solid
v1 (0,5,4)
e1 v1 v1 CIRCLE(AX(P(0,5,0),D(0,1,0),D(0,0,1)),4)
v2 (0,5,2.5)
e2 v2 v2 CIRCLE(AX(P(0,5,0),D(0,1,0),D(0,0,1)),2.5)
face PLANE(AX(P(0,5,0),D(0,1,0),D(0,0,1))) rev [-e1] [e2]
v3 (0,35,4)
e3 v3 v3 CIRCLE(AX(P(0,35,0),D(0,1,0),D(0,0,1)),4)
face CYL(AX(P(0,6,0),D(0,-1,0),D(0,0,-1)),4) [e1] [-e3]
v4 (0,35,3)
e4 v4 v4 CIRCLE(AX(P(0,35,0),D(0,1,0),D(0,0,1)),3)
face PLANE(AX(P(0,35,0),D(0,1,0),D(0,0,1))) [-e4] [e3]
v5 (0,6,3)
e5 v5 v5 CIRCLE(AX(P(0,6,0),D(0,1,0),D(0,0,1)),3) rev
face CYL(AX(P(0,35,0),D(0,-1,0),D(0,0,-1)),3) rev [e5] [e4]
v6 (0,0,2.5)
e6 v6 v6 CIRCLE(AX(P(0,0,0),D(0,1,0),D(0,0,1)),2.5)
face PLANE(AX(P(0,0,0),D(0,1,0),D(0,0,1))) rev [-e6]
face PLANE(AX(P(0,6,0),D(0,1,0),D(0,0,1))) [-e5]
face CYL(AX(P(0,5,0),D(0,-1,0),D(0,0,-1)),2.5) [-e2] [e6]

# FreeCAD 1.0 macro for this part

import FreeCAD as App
import Part
import Sketcher

V = App.Vector

doc = App.newDocument("Part")
body = doc.addObject("PartDesign::Body", "Body")

sketch1 = body.newObject("Sketcher::SketchObject", "Sketch")
sketch1.AttachmentSupport = (doc.getObject("XZ_Plane"), [""])
sketch1.MapMode = "FlatFace"
sketch1.addGeometry(Part.Circle(V(0, 0, 0), V(0, 0, 1), 2.5), False)
sketch1.addConstraint([
    Sketcher.Constraint("Coincident", 0, 3, -1, 1),
    Sketcher.Constraint("Diameter", 0, 5.0),
])
pad1 = body.newObject("PartDesign::Pad", "Pad")
pad1.Profile = sketch1
pad1.Length = 5
pad1.Reversed = True

sketch2 = body.newObject("Sketcher::SketchObject", "Sketch001")
sketch2.AttachmentSupport = (doc.getObject("XZ_Plane"), [""])
sketch2.MapMode = "FlatFace"
sketch2.AttachmentOffset = App.Placement(V(0, 0, -5), App.Rotation())
sketch2.addGeometry(Part.Circle(V(0, 0, 0), V(0, 0, 1), 4), False)
sketch2.addConstraint([
    Sketcher.Constraint("Coincident", 0, 3, -1, 1),
    Sketcher.Constraint("Diameter", 0, 8.0),
])
pad2 = body.newObject("PartDesign::Pad", "Pad001")
pad2.Profile = sketch2
pad2.Length = 1
pad2.Reversed = True

sketch3 = body.newObject("Sketcher::SketchObject", "Sketch002")
sketch3.AttachmentSupport = (doc.getObject("XZ_Plane"), [""])
sketch3.MapMode = "FlatFace"
sketch3.AttachmentOffset = App.Placement(V(0, 0, -6), App.Rotation())
sketch3.addGeometry([
    Part.Circle(V(0, 0, 0), V(0, 0, 1), 4),
    Part.Circle(V(0, 0, 0), V(0, 0, 1), 3),
], False)
sketch3.addConstraint([
    Sketcher.Constraint("Coincident", 0, 3, -1, 1),
    Sketcher.Constraint("Coincident", 1, 3, -1, 1),
    Sketcher.Constraint("Diameter", 0, 8.0),
    Sketcher.Constraint("Diameter", 1, 6.0),
])
pad3 = body.newObject("PartDesign::Pad", "Pad002")
pad3.Profile = sketch3
pad3.Length = 29
pad3.Reversed = True

doc.recompute()
